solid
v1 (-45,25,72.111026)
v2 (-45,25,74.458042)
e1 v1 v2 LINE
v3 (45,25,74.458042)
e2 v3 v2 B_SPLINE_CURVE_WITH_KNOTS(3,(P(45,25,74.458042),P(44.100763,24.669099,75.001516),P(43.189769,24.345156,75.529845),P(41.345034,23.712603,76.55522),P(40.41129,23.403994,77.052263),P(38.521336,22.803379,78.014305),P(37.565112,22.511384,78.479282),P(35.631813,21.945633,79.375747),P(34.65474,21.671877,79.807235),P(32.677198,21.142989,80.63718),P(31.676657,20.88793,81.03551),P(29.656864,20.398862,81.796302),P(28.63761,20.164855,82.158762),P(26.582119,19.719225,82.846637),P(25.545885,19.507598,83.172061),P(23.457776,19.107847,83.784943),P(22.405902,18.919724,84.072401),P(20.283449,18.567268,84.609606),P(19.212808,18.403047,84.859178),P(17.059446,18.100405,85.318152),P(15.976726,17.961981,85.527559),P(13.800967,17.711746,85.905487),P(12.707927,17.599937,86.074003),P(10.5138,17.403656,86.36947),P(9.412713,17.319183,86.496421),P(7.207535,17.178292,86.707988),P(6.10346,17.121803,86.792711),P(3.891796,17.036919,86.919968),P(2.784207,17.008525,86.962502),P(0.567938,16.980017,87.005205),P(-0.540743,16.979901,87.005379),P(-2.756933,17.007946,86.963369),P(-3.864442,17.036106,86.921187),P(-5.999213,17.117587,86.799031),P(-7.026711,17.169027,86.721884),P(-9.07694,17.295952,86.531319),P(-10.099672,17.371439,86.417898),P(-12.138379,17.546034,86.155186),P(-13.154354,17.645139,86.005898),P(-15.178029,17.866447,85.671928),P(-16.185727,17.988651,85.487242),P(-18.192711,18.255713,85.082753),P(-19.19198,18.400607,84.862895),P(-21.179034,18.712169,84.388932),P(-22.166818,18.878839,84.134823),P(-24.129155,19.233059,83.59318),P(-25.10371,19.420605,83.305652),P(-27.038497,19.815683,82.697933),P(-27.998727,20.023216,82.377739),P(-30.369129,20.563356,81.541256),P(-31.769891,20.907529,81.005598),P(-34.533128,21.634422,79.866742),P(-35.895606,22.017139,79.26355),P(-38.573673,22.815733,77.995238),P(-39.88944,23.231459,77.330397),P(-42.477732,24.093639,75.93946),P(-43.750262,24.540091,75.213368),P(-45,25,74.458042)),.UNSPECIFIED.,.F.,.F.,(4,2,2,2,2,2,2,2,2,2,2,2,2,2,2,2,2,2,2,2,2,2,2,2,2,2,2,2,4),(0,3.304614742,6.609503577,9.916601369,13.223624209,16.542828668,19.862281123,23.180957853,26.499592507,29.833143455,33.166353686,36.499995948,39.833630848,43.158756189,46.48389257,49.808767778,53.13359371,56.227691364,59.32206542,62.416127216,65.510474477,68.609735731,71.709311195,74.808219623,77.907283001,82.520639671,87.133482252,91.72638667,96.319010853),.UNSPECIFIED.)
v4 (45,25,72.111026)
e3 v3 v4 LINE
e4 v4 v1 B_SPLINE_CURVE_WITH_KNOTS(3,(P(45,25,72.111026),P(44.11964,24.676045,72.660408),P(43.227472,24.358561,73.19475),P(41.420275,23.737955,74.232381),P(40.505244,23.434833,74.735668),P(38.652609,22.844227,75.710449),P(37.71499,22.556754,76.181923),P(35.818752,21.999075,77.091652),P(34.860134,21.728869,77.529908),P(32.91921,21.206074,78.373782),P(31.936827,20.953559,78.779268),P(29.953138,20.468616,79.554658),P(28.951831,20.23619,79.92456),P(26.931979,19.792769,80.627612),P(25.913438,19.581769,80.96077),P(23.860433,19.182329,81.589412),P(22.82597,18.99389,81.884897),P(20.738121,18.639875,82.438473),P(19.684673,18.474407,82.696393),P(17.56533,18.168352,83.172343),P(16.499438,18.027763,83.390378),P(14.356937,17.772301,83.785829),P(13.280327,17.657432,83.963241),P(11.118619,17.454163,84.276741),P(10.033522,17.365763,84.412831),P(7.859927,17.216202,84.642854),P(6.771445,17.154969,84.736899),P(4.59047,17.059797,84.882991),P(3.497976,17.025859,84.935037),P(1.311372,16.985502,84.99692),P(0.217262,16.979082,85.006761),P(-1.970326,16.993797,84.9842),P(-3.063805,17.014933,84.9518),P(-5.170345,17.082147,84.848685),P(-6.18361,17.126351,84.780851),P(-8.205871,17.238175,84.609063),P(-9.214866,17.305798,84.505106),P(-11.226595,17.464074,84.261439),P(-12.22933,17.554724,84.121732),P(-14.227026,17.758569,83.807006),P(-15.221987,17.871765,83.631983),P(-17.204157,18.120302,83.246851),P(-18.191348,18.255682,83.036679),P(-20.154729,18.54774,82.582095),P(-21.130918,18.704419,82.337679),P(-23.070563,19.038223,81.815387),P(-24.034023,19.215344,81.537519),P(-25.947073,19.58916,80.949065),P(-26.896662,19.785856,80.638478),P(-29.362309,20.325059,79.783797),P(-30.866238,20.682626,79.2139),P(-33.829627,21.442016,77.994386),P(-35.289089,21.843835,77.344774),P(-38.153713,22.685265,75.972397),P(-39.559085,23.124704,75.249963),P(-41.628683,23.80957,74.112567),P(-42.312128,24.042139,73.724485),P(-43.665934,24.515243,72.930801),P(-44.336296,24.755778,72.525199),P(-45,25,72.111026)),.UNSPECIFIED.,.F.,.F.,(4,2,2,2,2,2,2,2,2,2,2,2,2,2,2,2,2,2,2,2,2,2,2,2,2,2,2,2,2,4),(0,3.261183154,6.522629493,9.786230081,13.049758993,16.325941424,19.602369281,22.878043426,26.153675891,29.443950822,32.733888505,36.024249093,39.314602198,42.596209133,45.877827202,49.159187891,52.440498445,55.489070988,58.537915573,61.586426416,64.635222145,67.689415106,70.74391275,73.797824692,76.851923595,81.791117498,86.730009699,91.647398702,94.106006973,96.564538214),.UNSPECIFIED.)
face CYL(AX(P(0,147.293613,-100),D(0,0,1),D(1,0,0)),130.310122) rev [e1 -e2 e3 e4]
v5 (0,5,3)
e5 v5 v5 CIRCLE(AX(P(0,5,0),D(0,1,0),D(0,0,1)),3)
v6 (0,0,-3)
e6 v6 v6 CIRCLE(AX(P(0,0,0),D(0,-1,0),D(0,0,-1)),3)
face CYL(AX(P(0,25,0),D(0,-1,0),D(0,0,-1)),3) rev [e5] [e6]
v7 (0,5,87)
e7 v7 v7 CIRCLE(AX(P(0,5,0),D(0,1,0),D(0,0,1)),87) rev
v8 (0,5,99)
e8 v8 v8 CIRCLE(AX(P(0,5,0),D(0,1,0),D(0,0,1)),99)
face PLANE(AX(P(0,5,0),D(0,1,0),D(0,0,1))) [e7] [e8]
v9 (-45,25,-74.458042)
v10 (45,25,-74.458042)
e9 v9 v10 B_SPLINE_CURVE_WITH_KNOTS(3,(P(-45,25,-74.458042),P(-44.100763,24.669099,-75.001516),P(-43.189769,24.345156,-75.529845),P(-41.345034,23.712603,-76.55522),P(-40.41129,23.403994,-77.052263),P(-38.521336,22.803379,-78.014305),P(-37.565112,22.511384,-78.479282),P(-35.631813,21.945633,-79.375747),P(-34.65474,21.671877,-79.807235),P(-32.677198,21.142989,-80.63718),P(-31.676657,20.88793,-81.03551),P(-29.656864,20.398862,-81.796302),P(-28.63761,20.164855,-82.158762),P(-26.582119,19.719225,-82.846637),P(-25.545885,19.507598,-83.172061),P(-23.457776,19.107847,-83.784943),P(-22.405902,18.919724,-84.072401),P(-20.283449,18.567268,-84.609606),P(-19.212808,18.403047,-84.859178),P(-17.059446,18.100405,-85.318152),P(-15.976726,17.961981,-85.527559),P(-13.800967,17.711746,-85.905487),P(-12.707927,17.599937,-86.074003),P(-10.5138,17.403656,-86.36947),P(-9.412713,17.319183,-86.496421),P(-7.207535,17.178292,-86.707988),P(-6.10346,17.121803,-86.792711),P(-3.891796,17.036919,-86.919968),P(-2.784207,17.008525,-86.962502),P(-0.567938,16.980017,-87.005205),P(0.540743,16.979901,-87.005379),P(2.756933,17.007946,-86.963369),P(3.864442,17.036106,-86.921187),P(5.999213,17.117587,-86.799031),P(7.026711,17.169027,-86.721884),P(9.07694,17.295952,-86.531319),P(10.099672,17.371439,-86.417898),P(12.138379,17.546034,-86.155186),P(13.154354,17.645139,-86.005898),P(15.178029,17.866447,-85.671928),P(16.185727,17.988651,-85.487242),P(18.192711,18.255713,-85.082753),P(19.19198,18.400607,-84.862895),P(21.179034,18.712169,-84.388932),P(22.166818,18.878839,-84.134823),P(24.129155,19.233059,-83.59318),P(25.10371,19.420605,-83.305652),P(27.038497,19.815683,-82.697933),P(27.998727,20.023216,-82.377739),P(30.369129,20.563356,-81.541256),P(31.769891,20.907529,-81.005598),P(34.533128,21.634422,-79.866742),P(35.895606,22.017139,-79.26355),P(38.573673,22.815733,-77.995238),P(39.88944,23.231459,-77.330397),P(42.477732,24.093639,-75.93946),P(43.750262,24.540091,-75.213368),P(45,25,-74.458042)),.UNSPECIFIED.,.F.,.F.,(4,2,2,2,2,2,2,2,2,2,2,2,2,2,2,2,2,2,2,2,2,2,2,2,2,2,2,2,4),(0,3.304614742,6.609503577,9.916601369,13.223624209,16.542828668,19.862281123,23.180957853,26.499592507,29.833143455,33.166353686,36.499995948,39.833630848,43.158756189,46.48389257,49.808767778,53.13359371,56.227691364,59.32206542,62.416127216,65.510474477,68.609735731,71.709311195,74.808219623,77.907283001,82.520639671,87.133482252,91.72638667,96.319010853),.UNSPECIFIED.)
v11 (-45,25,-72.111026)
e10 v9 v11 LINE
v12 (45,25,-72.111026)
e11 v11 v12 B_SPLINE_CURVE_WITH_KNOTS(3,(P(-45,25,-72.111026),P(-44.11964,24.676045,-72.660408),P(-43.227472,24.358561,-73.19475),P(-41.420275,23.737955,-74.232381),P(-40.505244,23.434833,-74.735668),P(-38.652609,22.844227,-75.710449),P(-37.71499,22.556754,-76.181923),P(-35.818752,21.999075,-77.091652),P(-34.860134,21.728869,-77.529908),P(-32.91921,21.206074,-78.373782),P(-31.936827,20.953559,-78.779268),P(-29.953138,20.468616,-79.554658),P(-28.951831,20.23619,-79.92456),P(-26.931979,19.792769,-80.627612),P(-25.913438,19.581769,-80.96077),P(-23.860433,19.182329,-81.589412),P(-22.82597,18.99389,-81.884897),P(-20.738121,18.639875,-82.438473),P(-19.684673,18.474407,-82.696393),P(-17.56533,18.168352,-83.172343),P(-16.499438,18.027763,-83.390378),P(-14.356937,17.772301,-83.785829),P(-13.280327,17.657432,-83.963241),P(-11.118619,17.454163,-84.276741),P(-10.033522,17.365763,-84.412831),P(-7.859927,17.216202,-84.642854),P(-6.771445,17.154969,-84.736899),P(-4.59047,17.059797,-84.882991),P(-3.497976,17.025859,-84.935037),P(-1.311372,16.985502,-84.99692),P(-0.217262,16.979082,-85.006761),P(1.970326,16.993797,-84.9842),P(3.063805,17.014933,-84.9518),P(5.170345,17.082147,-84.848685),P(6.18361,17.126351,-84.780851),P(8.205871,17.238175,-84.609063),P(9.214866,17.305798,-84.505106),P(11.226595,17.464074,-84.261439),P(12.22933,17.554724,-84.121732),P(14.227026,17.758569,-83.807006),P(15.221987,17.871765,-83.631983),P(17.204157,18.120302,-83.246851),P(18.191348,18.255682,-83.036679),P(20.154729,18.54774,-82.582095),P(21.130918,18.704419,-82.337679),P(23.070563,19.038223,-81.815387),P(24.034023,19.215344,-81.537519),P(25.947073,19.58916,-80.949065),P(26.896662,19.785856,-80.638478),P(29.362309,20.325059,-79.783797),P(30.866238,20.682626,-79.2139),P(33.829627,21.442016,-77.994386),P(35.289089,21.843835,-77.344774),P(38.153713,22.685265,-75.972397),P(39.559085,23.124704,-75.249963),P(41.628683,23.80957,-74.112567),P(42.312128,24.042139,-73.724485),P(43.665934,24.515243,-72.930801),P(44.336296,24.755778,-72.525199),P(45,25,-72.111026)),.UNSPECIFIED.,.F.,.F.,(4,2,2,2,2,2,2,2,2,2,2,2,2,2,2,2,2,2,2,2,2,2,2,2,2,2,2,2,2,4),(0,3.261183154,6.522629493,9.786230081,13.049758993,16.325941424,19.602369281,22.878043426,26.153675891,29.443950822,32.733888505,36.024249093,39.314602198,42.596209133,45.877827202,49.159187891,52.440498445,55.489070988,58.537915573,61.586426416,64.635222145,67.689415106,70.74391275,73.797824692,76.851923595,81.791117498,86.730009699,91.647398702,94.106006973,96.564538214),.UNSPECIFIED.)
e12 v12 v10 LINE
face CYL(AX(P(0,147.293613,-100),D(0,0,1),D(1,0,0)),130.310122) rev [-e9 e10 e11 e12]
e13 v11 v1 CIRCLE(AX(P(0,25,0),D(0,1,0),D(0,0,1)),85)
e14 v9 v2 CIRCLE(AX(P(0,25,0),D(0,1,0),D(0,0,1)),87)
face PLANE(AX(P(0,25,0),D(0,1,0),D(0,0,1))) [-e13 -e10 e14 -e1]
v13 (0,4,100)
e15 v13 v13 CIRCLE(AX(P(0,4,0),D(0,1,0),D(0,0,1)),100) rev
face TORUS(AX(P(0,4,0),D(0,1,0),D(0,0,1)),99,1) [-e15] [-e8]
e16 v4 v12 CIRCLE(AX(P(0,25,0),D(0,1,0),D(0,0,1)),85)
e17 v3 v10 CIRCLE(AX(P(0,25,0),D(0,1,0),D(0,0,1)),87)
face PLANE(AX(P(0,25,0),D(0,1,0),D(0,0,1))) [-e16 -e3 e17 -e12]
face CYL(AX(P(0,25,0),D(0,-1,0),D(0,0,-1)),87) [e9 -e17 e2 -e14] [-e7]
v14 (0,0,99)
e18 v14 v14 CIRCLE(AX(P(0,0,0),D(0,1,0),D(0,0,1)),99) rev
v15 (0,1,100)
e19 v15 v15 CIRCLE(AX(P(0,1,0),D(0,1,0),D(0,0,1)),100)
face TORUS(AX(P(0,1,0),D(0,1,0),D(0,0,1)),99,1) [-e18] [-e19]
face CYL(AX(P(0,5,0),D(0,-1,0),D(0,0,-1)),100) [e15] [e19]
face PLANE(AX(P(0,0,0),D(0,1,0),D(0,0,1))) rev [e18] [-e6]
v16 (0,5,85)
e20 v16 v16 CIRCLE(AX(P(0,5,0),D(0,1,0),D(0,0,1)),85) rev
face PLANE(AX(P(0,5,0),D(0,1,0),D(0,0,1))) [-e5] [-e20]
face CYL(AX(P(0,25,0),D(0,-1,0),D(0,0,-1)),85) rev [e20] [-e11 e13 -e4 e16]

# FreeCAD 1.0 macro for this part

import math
import FreeCAD as App
import Part
import Sketcher
Q = App.Units.Quantity


def edges_at(feature, points):
    """Names of the edges that pass closest to the given points."""
    edges = feature.Shape.Edges
    near = lambda p: min(range(len(edges)), key=lambda i: edges[i].distToShape(Part.Vertex(*p))[0])
    return sorted({f"Edge{near(p) + 1}" for p in points})

doc = App.newDocument("Part")
body = doc.addObject("PartDesign::Body", "Body")

# Sketch on XZ plane
sketch1 = body.newObject("Sketcher::SketchObject", "Sketch")
sketch1.AttachmentSupport = (doc.getObject("XZ_Plane"), [""])
sketch1.MapMode = "FlatFace"
sketch1.addGeometry(Part.Circle(App.Vector(0, 0, 0), App.Vector(0, 0, 1), 100), False)
sketch1.addConstraint(Sketcher.Constraint("Coincident", 0, 3, -1, 1))
sketch1.addConstraint(Sketcher.Constraint("Diameter", 0, Q("200 mm")))
pad1 = body.newObject("PartDesign::Pad", "Pad")
pad1.Profile = sketch1
pad1.Length = 5
pad1.Reversed = True

# Sketch on XZ plane
sketch2 = body.newObject("Sketcher::SketchObject", "Sketch001")
sketch2.AttachmentSupport = (doc.getObject("XZ_Plane"), [""])
sketch2.MapMode = "FlatFace"
sketch2.addGeometry(Part.Circle(App.Vector(0, 0, 0), App.Vector(0, 0, 1), 87), False)
sketch2.addGeometry(Part.Circle(App.Vector(0, 0, 0), App.Vector(0, 0, 1), 85), False)
sketch2.addConstraint(Sketcher.Constraint("Coincident", 0, 3, -1, 1))
sketch2.addConstraint(Sketcher.Constraint("Coincident", 1, 3, -1, 1))
sketch2.addConstraint(Sketcher.Constraint("Diameter", 0, Q("174 mm")))
sketch2.addConstraint(Sketcher.Constraint("Diameter", 1, Q("170 mm")))
pad2 = body.newObject("PartDesign::Pad", "Pad001")
pad2.Profile = sketch2
pad2.Length = 25
pad2.Reversed = True

# Sketch on XY plane
sketch3 = body.newObject("Sketcher::SketchObject", "Sketch002")
sketch3.AttachmentSupport = (doc.getObject("XY_Plane"), [""])
sketch3.MapMode = "FlatFace"
sketch3.addGeometry(Part.LineSegment(App.Vector(-45, 27.8, 0), App.Vector(-45, 25, 0)), False)
sketch3.addGeometry(Part.ArcOfCircle(Part.Circle(App.Vector(0, 147.3, 0), App.Vector(0, 0, 1), 130.3), math.radians(-110), math.radians(-70)), False)
sketch3.addGeometry(Part.LineSegment(App.Vector(45, 25, 0), App.Vector(45, 27.8, 0)), False)
sketch3.addGeometry(Part.LineSegment(App.Vector(45, 27.8, 0), App.Vector(-45, 27.8, 0)), False)
sketch3.addConstraint(Sketcher.Constraint("Coincident", 0, 2, 1, 1))
sketch3.addConstraint(Sketcher.Constraint("Coincident", 1, 2, 2, 1))
sketch3.addConstraint(Sketcher.Constraint("Coincident", 2, 2, 3, 1))
sketch3.addConstraint(Sketcher.Constraint("Coincident", 3, 2, 0, 1))
sketch3.addConstraint(Sketcher.Constraint("Vertical", 0))
sketch3.addConstraint(Sketcher.Constraint("Vertical", 2))
sketch3.addConstraint(Sketcher.Constraint("Horizontal", 3))
sketch3.addConstraint(Sketcher.Constraint("Symmetric", 0, 2, 1, 2, -2))
sketch3.addConstraint(Sketcher.Constraint("DistanceX", 3, 2, 3, 1, Q("90 mm")))
sketch3.addConstraint(Sketcher.Constraint("DistanceY", -1, 1, 0, 2, Q("25 mm")))
sketch3.addConstraint(Sketcher.Constraint("DistanceY", 0, 2, 0, 1, Q("2.803999 mm")))
sketch3.addConstraint(Sketcher.Constraint("Radius", 1, Q("130.310122 mm")))
pocket1 = body.newObject("PartDesign::Pocket", "Pocket")
pocket1.Profile = sketch3
pocket1.Type = "ThroughAll"
pocket1.Midplane = True

# Sketch on XZ plane
sketch4 = body.newObject("Sketcher::SketchObject", "Sketch003")
sketch4.AttachmentSupport = (doc.getObject("XZ_Plane"), [""])
sketch4.MapMode = "FlatFace"
sketch4.addGeometry(Part.Circle(App.Vector(0, 0, 0), App.Vector(0, 0, 1), 3), False)
sketch4.addConstraint(Sketcher.Constraint("Coincident", 0, 3, -1, 1))
sketch4.addConstraint(Sketcher.Constraint("Diameter", 0, Q("6 mm")))
pocket2 = body.newObject("PartDesign::Pocket", "Pocket001")
pocket2.Profile = sketch4
pocket2.Type = "ThroughAll"
doc.recompute()

fillet = body.newObject("PartDesign::Fillet", "Fillet")
fillet.Base = (pocket2, edges_at(pocket2, [(0, 0, -100), (0, 5, -100)]))
fillet.Radius = 1

doc.recompute()
